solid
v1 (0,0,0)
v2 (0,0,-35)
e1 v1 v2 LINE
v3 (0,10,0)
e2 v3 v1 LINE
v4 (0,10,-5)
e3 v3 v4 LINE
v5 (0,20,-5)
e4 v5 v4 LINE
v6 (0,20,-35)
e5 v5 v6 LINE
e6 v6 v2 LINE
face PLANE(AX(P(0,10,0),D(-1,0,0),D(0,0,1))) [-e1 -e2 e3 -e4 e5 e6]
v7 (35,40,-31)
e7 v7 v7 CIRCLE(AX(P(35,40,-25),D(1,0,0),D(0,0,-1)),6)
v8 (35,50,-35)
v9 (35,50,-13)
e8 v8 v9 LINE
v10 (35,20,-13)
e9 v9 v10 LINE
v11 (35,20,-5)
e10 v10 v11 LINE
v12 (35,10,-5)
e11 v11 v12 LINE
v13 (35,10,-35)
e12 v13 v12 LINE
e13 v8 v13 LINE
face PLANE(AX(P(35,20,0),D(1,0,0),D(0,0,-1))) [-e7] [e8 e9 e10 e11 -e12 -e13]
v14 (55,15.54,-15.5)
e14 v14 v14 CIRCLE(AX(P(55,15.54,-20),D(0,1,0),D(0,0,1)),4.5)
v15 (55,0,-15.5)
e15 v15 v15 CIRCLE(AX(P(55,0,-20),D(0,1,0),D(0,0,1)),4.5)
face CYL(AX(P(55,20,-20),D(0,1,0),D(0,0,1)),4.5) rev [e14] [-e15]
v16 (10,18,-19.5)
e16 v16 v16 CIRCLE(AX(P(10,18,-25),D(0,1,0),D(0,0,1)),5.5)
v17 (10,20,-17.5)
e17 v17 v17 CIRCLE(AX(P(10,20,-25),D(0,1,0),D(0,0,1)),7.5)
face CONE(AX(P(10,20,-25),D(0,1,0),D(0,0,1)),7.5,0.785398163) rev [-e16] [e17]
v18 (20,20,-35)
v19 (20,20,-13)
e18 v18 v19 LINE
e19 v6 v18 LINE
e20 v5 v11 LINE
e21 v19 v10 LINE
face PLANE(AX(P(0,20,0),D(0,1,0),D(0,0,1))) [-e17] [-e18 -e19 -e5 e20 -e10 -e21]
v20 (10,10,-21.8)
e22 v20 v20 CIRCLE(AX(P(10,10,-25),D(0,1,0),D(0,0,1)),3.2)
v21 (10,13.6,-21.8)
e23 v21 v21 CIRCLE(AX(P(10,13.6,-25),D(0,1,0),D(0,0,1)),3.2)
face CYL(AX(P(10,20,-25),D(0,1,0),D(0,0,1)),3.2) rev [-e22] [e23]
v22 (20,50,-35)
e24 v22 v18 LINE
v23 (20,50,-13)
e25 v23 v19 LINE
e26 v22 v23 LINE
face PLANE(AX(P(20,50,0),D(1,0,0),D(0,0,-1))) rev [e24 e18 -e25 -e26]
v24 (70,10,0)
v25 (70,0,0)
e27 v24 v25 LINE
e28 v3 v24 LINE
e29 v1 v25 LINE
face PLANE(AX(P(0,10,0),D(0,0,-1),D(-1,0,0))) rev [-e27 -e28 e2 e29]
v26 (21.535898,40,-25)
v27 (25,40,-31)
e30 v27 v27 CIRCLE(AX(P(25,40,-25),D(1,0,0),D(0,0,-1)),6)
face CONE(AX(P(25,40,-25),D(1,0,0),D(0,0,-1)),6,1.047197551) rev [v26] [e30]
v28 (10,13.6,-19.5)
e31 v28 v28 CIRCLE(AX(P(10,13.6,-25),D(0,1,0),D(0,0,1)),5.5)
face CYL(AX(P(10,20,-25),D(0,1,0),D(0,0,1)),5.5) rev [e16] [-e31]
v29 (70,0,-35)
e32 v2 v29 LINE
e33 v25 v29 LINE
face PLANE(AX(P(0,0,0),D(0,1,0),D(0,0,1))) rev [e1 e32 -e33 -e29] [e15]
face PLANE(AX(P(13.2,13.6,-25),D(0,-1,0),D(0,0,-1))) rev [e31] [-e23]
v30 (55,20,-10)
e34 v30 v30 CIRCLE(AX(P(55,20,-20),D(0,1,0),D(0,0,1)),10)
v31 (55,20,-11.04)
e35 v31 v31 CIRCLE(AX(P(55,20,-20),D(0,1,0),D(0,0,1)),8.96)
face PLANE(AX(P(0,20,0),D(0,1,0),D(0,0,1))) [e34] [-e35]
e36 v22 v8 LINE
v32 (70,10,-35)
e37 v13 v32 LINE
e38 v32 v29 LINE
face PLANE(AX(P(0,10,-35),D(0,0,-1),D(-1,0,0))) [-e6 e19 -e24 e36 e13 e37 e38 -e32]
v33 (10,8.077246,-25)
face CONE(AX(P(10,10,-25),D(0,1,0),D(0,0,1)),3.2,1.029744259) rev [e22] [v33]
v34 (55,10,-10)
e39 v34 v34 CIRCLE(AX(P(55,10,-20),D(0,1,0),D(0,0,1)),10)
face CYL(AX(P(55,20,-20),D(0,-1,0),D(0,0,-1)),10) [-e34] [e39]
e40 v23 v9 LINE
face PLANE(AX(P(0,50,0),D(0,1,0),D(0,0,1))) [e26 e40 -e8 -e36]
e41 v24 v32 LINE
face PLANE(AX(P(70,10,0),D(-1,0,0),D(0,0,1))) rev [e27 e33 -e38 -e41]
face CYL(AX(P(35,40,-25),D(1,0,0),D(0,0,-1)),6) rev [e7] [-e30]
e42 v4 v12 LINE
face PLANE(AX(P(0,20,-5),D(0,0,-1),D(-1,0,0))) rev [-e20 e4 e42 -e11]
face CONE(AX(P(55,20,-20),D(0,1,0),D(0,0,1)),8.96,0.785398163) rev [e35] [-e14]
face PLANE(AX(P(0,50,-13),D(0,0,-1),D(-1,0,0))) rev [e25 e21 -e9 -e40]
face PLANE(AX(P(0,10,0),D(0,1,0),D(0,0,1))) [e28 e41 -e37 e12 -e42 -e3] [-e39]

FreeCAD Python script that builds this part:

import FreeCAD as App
import Part
import Sketcher
from FreeCAD import Vector
Q = App.Units.Quantity

doc = App.newDocument("Part")
body = doc.addObject("PartDesign::Body", "Body")

sketch1 = body.newObject("Sketcher::SketchObject", "Sketch")
sketch1.AttachmentSupport = (doc.getObject("XZ_Plane"), [""])
sketch1.MapMode = "FlatFace"
sketch1.addGeometry(Part.LineSegment(Vector(0, -5, 0), Vector(0, 0, 0)), False)
sketch1.addGeometry(Part.LineSegment(Vector(0, 0, 0), Vector(70, 0, 0)), False)
sketch1.addGeometry(Part.LineSegment(Vector(70, 0, 0), Vector(70, -35, 0)), False)
sketch1.addGeometry(Part.LineSegment(Vector(70, -35, 0), Vector(35, -35, 0)), False)
sketch1.addGeometry(Part.LineSegment(Vector(35, -35, 0), Vector(35, -5, 0)), False)
sketch1.addGeometry(Part.LineSegment(Vector(35, -5, 0), Vector(0, -5, 0)), False)
sketch1.addGeometry(Part.Circle(Vector(55, -20, 0), Vector(0, 0, 1), 10), False)
sketch1.addConstraint(Sketcher.Constraint("Coincident", 0, 2, 1, 1))
sketch1.addConstraint(Sketcher.Constraint("Coincident", 1, 2, 2, 1))
sketch1.addConstraint(Sketcher.Constraint("Coincident", 2, 2, 3, 1))
sketch1.addConstraint(Sketcher.Constraint("Coincident", 3, 2, 4, 1))
sketch1.addConstraint(Sketcher.Constraint("Coincident", 4, 2, 5, 1))
sketch1.addConstraint(Sketcher.Constraint("Coincident", 5, 2, 0, 1))
sketch1.addConstraint(Sketcher.Constraint("Vertical", 0))
sketch1.addConstraint(Sketcher.Constraint("Horizontal", 1))
sketch1.addConstraint(Sketcher.Constraint("Vertical", 2))
sketch1.addConstraint(Sketcher.Constraint("Horizontal", 3))
sketch1.addConstraint(Sketcher.Constraint("Vertical", 4))
sketch1.addConstraint(Sketcher.Constraint("Horizontal", 5))
sketch1.addConstraint(Sketcher.Constraint("Coincident", 0, 2, -1, 1))
sketch1.addConstraint(Sketcher.Constraint("Equal", 3, 5))
sketch1.addConstraint(Sketcher.Constraint("Equal", 5, 2))
sketch1.addConstraint(Sketcher.Constraint("Diameter", 6, 20.0))
sketch1.addConstraint(Sketcher.Constraint("DistanceX", 1, 1, 1, 2, 70.0))
sketch1.addConstraint(Sketcher.Constraint("DistanceY", 0, 1, 0, 2, 5.0))
sketch1.addConstraint(Sketcher.Constraint("DistanceX", -1, 1, 6, 3, 55.0))
sketch1.addConstraint(Sketcher.Constraint("DistanceY", 6, 3, -1, 1, 20.0))
pad1 = body.newObject("PartDesign::Pad", "Pad")
pad1.Profile = sketch1
pad1.Length = 10
pad1.Reversed = True

sketch2 = body.newObject("Sketcher::SketchObject", "Sketch001")
sketch2.AttachmentSupport = (doc.getObject("XZ_Plane"), [""])
sketch2.MapMode = "FlatFace"
sketch2.addGeometry(Part.LineSegment(Vector(0, -35, 0), Vector(0, -5, 0)), False)
sketch2.addGeometry(Part.LineSegment(Vector(0, -5, 0), Vector(35, -5, 0)), False)
sketch2.addGeometry(Part.LineSegment(Vector(35, -5, 0), Vector(35, -13, 0)), False)
sketch2.addGeometry(Part.LineSegment(Vector(35, -13, 0), Vector(20, -13, 0)), False)
sketch2.addGeometry(Part.LineSegment(Vector(20, -13, 0), Vector(20, -35, 0)), False)
sketch2.addGeometry(Part.LineSegment(Vector(20, -35, 0), Vector(0, -35, 0)), False)
sketch2.addGeometry(Part.Circle(Vector(55, -20, 0), Vector(0, 0, 1), 10), False)
sketch2.addConstraint(Sketcher.Constraint("Coincident", 0, 2, 1, 1))
sketch2.addConstraint(Sketcher.Constraint("Coincident", 1, 2, 2, 1))
sketch2.addConstraint(Sketcher.Constraint("Coincident", 2, 2, 3, 1))
sketch2.addConstraint(Sketcher.Constraint("Coincident", 3, 2, 4, 1))
sketch2.addConstraint(Sketcher.Constraint("Coincident", 4, 2, 5, 1))
sketch2.addConstraint(Sketcher.Constraint("Coincident", 5, 2, 0, 1))
sketch2.addConstraint(Sketcher.Constraint("Vertical", 0))
sketch2.addConstraint(Sketcher.Constraint("Horizontal", 1))
sketch2.addConstraint(Sketcher.Constraint("Vertical", 2))
sketch2.addConstraint(Sketcher.Constraint("Horizontal", 3))
sketch2.addConstraint(Sketcher.Constraint("Vertical", 4))
sketch2.addConstraint(Sketcher.Constraint("Horizontal", 5))
sketch2.addConstraint(Sketcher.Constraint("PointOnObject", 0, 2, -2))
sketch2.addConstraint(Sketcher.Constraint("Diameter", 6, 20.0))
sketch2.addConstraint(Sketcher.Constraint("DistanceX", 1, 1, 1, 2, 35.0))
sketch2.addConstraint(Sketcher.Constraint("DistanceX", 3, 2, 3, 1, 15.0))
sketch2.addConstraint(Sketcher.Constraint("DistanceY", 0, 1, 0, 2, 30.0))
sketch2.addConstraint(Sketcher.Constraint("DistanceY", 2, 2, 2, 1, 8.0))
sketch2.addConstraint(Sketcher.Constraint("DistanceX", -1, 1, 6, 3, 55.0))
sketch2.addConstraint(Sketcher.Constraint("DistanceY", 6, 3, -1, 1, 20.0))
sketch2.addConstraint(Sketcher.Constraint("DistanceY", 0, 2, -1, 1, 5.0))
pad2 = body.newObject("PartDesign::Pad", "Pad001")
pad2.Profile = sketch2
pad2.Length = 20
pad2.Reversed = True

sketch3 = body.newObject("Sketcher::SketchObject", "Sketch002")
sketch3.AttachmentSupport = (doc.getObject("XZ_Plane"), [""])
sketch3.MapMode = "FlatFace"
sketch3.addGeometry(Part.LineSegment(Vector(20, -35, 0), Vector(20, -13, 0)), False)
sketch3.addGeometry(Part.LineSegment(Vector(20, -13, 0), Vector(35, -13, 0)), False)
sketch3.addGeometry(Part.LineSegment(Vector(35, -13, 0), Vector(35, -35, 0)), False)
sketch3.addGeometry(Part.LineSegment(Vector(35, -35, 0), Vector(20, -35, 0)), False)
sketch3.addConstraint(Sketcher.Constraint("Coincident", 0, 2, 1, 1))
sketch3.addConstraint(Sketcher.Constraint("Coincident", 1, 2, 2, 1))
sketch3.addConstraint(Sketcher.Constraint("Coincident", 2, 2, 3, 1))
sketch3.addConstraint(Sketcher.Constraint("Coincident", 3, 2, 0, 1))
sketch3.addConstraint(Sketcher.Constraint("Vertical", 0))
sketch3.addConstraint(Sketcher.Constraint("Horizontal", 1))
sketch3.addConstraint(Sketcher.Constraint("Vertical", 2))
sketch3.addConstraint(Sketcher.Constraint("Horizontal", 3))
sketch3.addConstraint(Sketcher.Constraint("DistanceX", 1, 1, 1, 2, 15.0))
sketch3.addConstraint(Sketcher.Constraint("DistanceY", 0, 1, 0, 2, 22.0))
sketch3.addConstraint(Sketcher.Constraint("DistanceX", -1, 1, 0, 2, 20.0))
sketch3.addConstraint(Sketcher.Constraint("DistanceY", 0, 2, -1, 1, 13.0))
pad3 = body.newObject("PartDesign::Pad", "Pad002")
pad3.Profile = sketch3
pad3.Length = 50
pad3.Reversed = True

sketch4 = body.newObject("Sketcher::SketchObject", "Sketch003")
sketch4.AttachmentSupport = (doc.getObject("XZ_Plane"), [""])
sketch4.MapMode = "FlatFace"
sketch4.AttachmentOffset = App.Placement(Vector(0, 0, -20), App.Rotation())
sketch4.addGeometry(Part.Circle(Vector(55, -20, 0), Vector(0, 0, 1), 4.5), False)
sketch4.addConstraint(Sketcher.Constraint("Diameter", 0, 9.0))
sketch4.addConstraint(Sketcher.Constraint("DistanceX", -1, 1, 0, 3, 55.0))
sketch4.addConstraint(Sketcher.Constraint("DistanceY", 0, 3, -1, 1, 20.0))
doc.recompute()
hole = body.newObject("PartDesign::Hole", "Hole")
hole.Profile = sketch4
hole.ThreadType = "None"
hole.Diameter = 9
hole.DepthType = "ThroughAll"
hole.HoleCutType = "Countersink"
hole.HoleCutDiameter = 17.92
hole.HoleCutCountersinkAngle = 90
hole.Reversed = True

sketch5 = body.newObject("Sketcher::SketchObject", "Sketch004")
sketch5.AttachmentSupport = (doc.getObject("YZ_Plane"), [""])
sketch5.MapMode = "FlatFace"
sketch5.AttachmentOffset = App.Placement(Vector(0, 0, 10), App.Rotation())
sketch5.addGeometry(Part.LineSegment(Vector(8.077246, -25, 0), Vector(20, -25, 0)), False)
sketch5.addGeometry(Part.LineSegment(Vector(20, -25, 0), Vector(20, -17.5, 0)), False)
sketch5.addGeometry(Part.LineSegment(Vector(20, -17.5, 0), Vector(18, -19.5, 0)), False)
sketch5.addGeometry(Part.LineSegment(Vector(18, -19.5, 0), Vector(13.6, -19.5, 0)), False)
sketch5.addGeometry(Part.LineSegment(Vector(13.6, -19.5, 0), Vector(13.6, -21.8, 0)), False)
sketch5.addGeometry(Part.LineSegment(Vector(13.6, -21.8, 0), Vector(10, -21.8, 0)), False)
sketch5.addGeometry(Part.LineSegment(Vector(10, -21.8, 0), Vector(8.077246, -25, 0)), False)
sketch5.addGeometry(Part.LineSegment(Vector(20, -25, 0), Vector(8.077246, -25, 0)), True)
sketch5.addConstraint(Sketcher.Constraint("Coincident", 0, 2, 1, 1))
sketch5.addConstraint(Sketcher.Constraint("Coincident", 1, 2, 2, 1))
sketch5.addConstraint(Sketcher.Constraint("Coincident", 2, 2, 3, 1))
sketch5.addConstraint(Sketcher.Constraint("Coincident", 3, 2, 4, 1))
sketch5.addConstraint(Sketcher.Constraint("Coincident", 4, 2, 5, 1))
sketch5.addConstraint(Sketcher.Constraint("Coincident", 5, 2, 6, 1))
sketch5.addConstraint(Sketcher.Constraint("Coincident", 6, 2, 0, 1))
sketch5.addConstraint(Sketcher.Constraint("Horizontal", 0))
sketch5.addConstraint(Sketcher.Constraint("Vertical", 1))
sketch5.addConstraint(Sketcher.Constraint("Horizontal", 3))
sketch5.addConstraint(Sketcher.Constraint("Vertical", 4))
sketch5.addConstraint(Sketcher.Constraint("Horizontal", 5))
sketch5.addConstraint(Sketcher.Constraint("Horizontal", 7))
sketch5.addConstraint(Sketcher.Constraint("Coincident", 7, 1, 0, 2))
sketch5.addConstraint(Sketcher.Constraint("Equal", 0, 7))
sketch5.addConstraint(Sketcher.Constraint("Angle", 2, Q("-135 deg")))
sketch5.addConstraint(Sketcher.Constraint("Angle", 6, Q("-121 deg")))
sketch5.addConstraint(Sketcher.Constraint("DistanceX", 3, 2, 3, 1, 4.4))
sketch5.addConstraint(Sketcher.Constraint("DistanceX", 5, 2, 5, 1, 3.6))
sketch5.addConstraint(Sketcher.Constraint("DistanceY", 1, 1, 1, 2, 7.5))
sketch5.addConstraint(Sketcher.Constraint("DistanceY", 4, 2, 4, 1, 2.3))
sketch5.addConstraint(Sketcher.Constraint("DistanceX", -1, 1, 0, 2, 20.0))
sketch5.addConstraint(Sketcher.Constraint("DistanceY", 0, 2, -1, 1, 25.0))
sketch5.addConstraint(Sketcher.Constraint("DistanceX", -1, 1, 2, 2, 18.0))
groove = body.newObject("PartDesign::Groove", "Groove")
groove.Profile = sketch5
groove.ReferenceAxis = (sketch5, ["Axis0"])
groove.Angle = 360

sketch6 = body.newObject("Sketcher::SketchObject", "Sketch005")
sketch6.AttachmentSupport = (doc.getObject("YZ_Plane"), [""])
sketch6.MapMode = "FlatFace"
sketch6.AttachmentOffset = App.Placement(Vector(0, 0, 35), App.Rotation())
sketch6.addGeometry(Part.Circle(Vector(40, -25, 0), Vector(0, 0, 1), 6), False)
sketch6.addConstraint(Sketcher.Constraint("Diameter", 0, 12.0))
sketch6.addConstraint(Sketcher.Constraint("DistanceX", -1, 1, 0, 3, 40.0))
sketch6.addConstraint(Sketcher.Constraint("DistanceY", 0, 3, -1, 1, 25.0))
doc.recompute()
hole2 = body.newObject("PartDesign::Hole", "Hole001")
hole2.Profile = sketch6
hole2.ThreadType = "None"
hole2.Diameter = 12
hole2.DepthType = "Dimension"
hole2.Depth = 10
hole2.DrillPoint = "Angled"
hole2.DrillPointAngle = 120

doc.recompute()
